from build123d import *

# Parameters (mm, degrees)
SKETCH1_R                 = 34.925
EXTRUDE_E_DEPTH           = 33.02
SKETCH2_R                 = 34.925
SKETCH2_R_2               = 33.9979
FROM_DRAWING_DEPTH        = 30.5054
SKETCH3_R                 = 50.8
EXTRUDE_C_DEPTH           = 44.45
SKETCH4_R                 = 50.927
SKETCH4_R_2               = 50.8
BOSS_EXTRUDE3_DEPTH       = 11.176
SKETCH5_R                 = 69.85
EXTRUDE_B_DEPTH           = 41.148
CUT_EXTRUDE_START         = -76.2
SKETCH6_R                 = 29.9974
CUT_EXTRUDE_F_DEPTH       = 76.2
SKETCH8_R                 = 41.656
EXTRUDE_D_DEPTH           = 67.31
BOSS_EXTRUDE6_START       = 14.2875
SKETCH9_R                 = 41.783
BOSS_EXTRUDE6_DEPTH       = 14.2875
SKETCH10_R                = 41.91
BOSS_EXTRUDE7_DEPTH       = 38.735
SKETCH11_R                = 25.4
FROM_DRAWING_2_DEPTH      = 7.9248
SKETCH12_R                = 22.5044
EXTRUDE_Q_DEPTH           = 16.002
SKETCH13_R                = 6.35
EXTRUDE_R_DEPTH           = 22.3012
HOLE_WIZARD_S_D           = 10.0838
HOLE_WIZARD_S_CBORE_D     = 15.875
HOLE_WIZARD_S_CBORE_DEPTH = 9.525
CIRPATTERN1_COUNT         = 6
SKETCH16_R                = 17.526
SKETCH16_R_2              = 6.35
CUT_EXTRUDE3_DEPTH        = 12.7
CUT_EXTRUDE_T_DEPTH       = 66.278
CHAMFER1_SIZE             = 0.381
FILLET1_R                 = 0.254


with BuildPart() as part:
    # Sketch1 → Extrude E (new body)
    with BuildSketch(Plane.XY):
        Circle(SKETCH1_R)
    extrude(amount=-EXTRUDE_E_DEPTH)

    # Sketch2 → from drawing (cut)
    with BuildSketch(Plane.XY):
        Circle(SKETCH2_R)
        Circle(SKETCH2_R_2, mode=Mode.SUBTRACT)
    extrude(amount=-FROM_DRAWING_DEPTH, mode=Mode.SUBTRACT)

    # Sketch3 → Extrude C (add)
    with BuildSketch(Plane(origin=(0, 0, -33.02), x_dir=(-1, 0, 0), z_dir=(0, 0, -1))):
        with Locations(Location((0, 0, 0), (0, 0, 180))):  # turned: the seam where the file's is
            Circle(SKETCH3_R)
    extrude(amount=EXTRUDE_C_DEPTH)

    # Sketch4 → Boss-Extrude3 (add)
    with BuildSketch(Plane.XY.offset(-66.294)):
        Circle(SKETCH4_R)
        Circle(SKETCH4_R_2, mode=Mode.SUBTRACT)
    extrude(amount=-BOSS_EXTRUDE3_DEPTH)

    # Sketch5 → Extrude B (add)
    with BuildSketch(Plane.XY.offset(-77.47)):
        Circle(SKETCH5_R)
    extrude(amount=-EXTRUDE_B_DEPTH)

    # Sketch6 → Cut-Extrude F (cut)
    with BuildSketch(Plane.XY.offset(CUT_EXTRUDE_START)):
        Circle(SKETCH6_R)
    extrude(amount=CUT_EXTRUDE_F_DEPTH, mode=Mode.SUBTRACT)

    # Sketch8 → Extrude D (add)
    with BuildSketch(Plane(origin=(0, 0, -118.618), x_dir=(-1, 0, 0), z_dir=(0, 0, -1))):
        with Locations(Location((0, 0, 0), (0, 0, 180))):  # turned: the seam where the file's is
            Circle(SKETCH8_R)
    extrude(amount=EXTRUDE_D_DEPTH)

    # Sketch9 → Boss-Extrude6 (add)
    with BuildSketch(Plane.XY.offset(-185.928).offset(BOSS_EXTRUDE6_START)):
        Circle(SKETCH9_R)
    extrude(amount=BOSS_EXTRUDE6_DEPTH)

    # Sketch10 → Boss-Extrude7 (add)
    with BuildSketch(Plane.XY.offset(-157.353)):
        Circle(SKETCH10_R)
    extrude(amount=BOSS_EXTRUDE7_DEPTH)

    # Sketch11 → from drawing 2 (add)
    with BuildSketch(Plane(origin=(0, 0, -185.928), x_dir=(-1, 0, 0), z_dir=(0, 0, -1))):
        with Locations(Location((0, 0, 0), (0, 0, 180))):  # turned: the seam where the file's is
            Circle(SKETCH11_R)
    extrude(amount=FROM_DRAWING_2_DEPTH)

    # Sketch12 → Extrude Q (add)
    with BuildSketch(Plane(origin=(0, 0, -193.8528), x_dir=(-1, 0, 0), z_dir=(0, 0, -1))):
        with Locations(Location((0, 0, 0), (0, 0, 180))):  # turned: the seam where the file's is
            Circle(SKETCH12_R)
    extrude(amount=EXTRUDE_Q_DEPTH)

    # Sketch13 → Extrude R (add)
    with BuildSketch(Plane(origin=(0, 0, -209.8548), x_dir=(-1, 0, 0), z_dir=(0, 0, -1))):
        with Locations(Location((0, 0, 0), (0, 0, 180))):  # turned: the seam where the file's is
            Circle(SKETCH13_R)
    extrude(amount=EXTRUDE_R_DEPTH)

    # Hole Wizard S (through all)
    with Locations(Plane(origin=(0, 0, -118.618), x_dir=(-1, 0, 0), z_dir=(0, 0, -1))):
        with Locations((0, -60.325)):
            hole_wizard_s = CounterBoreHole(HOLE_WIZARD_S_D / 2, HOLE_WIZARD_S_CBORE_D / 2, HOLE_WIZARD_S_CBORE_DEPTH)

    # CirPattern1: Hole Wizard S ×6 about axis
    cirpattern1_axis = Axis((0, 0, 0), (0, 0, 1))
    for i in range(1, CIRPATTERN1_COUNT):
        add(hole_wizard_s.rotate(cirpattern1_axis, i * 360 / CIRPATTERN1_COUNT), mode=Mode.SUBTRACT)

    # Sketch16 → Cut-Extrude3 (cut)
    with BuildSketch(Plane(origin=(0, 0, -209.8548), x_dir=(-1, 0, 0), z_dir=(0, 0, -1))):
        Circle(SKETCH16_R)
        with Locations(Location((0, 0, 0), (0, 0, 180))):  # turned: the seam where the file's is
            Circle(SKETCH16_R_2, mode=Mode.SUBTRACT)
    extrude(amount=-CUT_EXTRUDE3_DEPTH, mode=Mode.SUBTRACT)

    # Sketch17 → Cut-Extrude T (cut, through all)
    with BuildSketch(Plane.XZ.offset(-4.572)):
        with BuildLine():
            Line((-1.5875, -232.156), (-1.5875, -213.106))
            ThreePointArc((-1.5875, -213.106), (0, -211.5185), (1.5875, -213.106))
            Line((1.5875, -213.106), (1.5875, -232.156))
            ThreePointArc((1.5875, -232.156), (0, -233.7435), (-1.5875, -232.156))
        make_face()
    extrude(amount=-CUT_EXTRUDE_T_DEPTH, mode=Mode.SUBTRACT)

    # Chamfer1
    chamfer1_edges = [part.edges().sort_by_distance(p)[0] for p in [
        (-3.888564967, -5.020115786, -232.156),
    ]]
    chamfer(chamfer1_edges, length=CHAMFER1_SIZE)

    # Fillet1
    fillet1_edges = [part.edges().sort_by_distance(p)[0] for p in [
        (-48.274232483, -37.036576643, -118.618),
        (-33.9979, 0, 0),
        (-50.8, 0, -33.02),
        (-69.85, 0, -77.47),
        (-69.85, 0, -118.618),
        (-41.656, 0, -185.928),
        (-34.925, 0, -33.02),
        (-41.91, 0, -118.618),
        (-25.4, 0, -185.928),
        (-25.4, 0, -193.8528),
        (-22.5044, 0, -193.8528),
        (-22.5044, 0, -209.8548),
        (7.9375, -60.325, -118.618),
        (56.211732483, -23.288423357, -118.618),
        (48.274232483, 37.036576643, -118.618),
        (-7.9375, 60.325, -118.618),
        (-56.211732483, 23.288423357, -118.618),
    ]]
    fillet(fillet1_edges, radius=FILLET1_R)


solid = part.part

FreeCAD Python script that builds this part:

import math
import FreeCAD as App
import Part
import Sketcher
from FreeCAD import Vector
Q = App.Units.Quantity


def edges_at(feature, points):
    """Names of the edges that pass closest to the given points."""
    edges = feature.Shape.Edges
    near = lambda p: min(range(len(edges)), key=lambda i: edges[i].distToShape(Part.Vertex(*p))[0])
    return sorted({f"Edge{near(p) + 1}" for p in points})

doc = App.newDocument("Part")
body = doc.addObject("PartDesign::Body", "Body")

sketch1 = doc.addObject("Sketcher::SketchObject", "Sketch")
body.addObject(sketch1)
sketch1.AttachmentSupport = (doc.XY_Plane, [""])
sketch1.MapMode = "FlatFace"
sketch1.addGeometry(Part.Circle(Vector(0, 0, 0), Vector(0, 0, 1), 34.925), False)
sketch1.addConstraint([
    Sketcher.Constraint("Coincident", 0, 3, -1, 1),
    Sketcher.Constraint("Diameter", 0, Q("2.75 in")),
])
pad1 = doc.addObject("PartDesign::Pad", "Pad")
body.addObject(pad1)
pad1.Profile = sketch1
pad1.Length = Q("1.3 in")
pad1.Reversed = True

sketch2 = doc.addObject("Sketcher::SketchObject", "Sketch001")
body.addObject(sketch2)
sketch2.AttachmentSupport = (doc.XY_Plane, [""])
sketch2.MapMode = "FlatFace"
sketch2.addGeometry([
    Part.Circle(Vector(0, 0, 0), Vector(0, 0, 1), 34.925),
    Part.Circle(Vector(0, 0, 0), Vector(0, 0, 1), 33.9979),
], False)
sketch2.addConstraint([
    Sketcher.Constraint("Coincident", 0, 3, -1, 1),
    Sketcher.Constraint("Coincident", 1, 3, -1, 1),
    Sketcher.Constraint("Diameter", 0, Q("2.75 in")),
    Sketcher.Constraint("Diameter", 1, Q("2.677 in")),
])
pocket1 = doc.addObject("PartDesign::Pocket", "Pocket")
body.addObject(pocket1)
pocket1.Profile = sketch2
pocket1.Length = Q("1.201 in")

sketch3 = doc.addObject("Sketcher::SketchObject", "Sketch002")
body.addObject(sketch3)
sketch3.AttachmentSupport = (doc.XY_Plane, [""])
sketch3.MapMode = "FlatFace"
sketch3.AttachmentOffset = App.Placement(Vector(0, 0, -1.3 * 25.4), App.Rotation())
sketch3.addGeometry(Part.Circle(Vector(0, 0, 0), Vector(0, 0, 1), 50.8), False)
sketch3.addConstraint([
    Sketcher.Constraint("Coincident", 0, 3, -1, 1),
    Sketcher.Constraint("Diameter", 0, Q("4 in")),
])
pad2 = doc.addObject("PartDesign::Pad", "Pad001")
body.addObject(pad2)
pad2.Profile = sketch3
pad2.Length = Q("1.75 in")
pad2.Reversed = True

sketch4 = doc.addObject("Sketcher::SketchObject", "Sketch003")
body.addObject(sketch4)
sketch4.AttachmentSupport = (doc.XY_Plane, [""])
sketch4.MapMode = "FlatFace"
sketch4.AttachmentOffset = App.Placement(Vector(0, 0, -2.61 * 25.4), App.Rotation())
sketch4.addGeometry([
    Part.Circle(Vector(0, 0, 0), Vector(0, 0, 1), 50.927),
    Part.Circle(Vector(0, 0, 0), Vector(0, 0, 1), 50.8),
], False)
sketch4.addConstraint([
    Sketcher.Constraint("Coincident", 0, 3, -1, 1),
    Sketcher.Constraint("Coincident", 1, 3, -1, 1),
    Sketcher.Constraint("Diameter", 1, Q("4 in")),
    Sketcher.Constraint("Diameter", 0, Q("4.01 in")),
])
pad3 = doc.addObject("PartDesign::Pad", "Pad002")
body.addObject(pad3)
pad3.Profile = sketch4
pad3.Length = Q("0.44 in")
pad3.Reversed = True

sketch5 = doc.addObject("Sketcher::SketchObject", "Sketch004")
body.addObject(sketch5)
sketch5.AttachmentSupport = (doc.XY_Plane, [""])
sketch5.MapMode = "FlatFace"
sketch5.AttachmentOffset = App.Placement(Vector(0, 0, -3.05 * 25.4), App.Rotation())
sketch5.addGeometry(Part.Circle(Vector(0, 0, 0), Vector(0, 0, 1), 69.85), False)
sketch5.addConstraint([
    Sketcher.Constraint("Coincident", 0, 3, -1, 1),
    Sketcher.Constraint("Diameter", 0, Q("5.5 in")),
])
pad4 = doc.addObject("PartDesign::Pad", "Pad003")
body.addObject(pad4)
pad4.Profile = sketch5
pad4.Length = Q("1.62 in")
pad4.Reversed = True

sketch6 = doc.addObject("Sketcher::SketchObject", "Sketch005")
body.addObject(sketch6)
sketch6.AttachmentSupport = (doc.XY_Plane, [""])
sketch6.MapMode = "FlatFace"
sketch6.AttachmentOffset = App.Placement(Vector(0, 0, -3 * 25.4), App.Rotation())
sketch6.addGeometry(Part.Circle(Vector(0, 0, 0), Vector(0, 0, 1), 29.9974), False)
sketch6.addConstraint([
    Sketcher.Constraint("Coincident", 0, 3, -1, 1),
    Sketcher.Constraint("Diameter", 0, Q("2.362 in")),
])
pocket2 = doc.addObject("PartDesign::Pocket", "Pocket001")
body.addObject(pocket2)
pocket2.Profile = sketch6
pocket2.Length = Q("3 in")
pocket2.Reversed = True

sketch7 = doc.addObject("Sketcher::SketchObject", "Sketch006")
body.addObject(sketch7)
sketch7.AttachmentSupport = (doc.XY_Plane, [""])
sketch7.MapMode = "FlatFace"
sketch7.AttachmentOffset = App.Placement(Vector(0, 0, -4.67 * 25.4), App.Rotation())
sketch7.addGeometry(Part.Circle(Vector(0, 0, 0), Vector(0, 0, 1), 41.656), False)
sketch7.addConstraint([
    Sketcher.Constraint("Coincident", 0, 3, -1, 1),
    Sketcher.Constraint("Diameter", 0, Q("3.28 in")),
])
pad5 = doc.addObject("PartDesign::Pad", "Pad004")
body.addObject(pad5)
pad5.Profile = sketch7
pad5.Length = Q("2.65 in")
pad5.Reversed = True

sketch8 = doc.addObject("Sketcher::SketchObject", "Sketch007")
body.addObject(sketch8)
sketch8.AttachmentSupport = (doc.XY_Plane, [""])
sketch8.MapMode = "FlatFace"
sketch8.AttachmentOffset = App.Placement(Vector(0, 0, -6.7575 * 25.4), App.Rotation())
sketch8.addGeometry(Part.Circle(Vector(0, 0, 0), Vector(0, 0, 1), 41.783), False)
sketch8.addConstraint([
    Sketcher.Constraint("Coincident", 0, 3, -1, 1),
    Sketcher.Constraint("Diameter", 0, Q("3.29 in")),
])
pad6 = doc.addObject("PartDesign::Pad", "Pad005")
body.addObject(pad6)
pad6.Profile = sketch8
pad6.Length = Q("0.5625 in")

sketch9 = doc.addObject("Sketcher::SketchObject", "Sketch008")
body.addObject(sketch9)
sketch9.AttachmentSupport = (doc.XY_Plane, [""])
sketch9.MapMode = "FlatFace"
sketch9.AttachmentOffset = App.Placement(Vector(0, 0, -6.195 * 25.4), App.Rotation())
sketch9.addGeometry(Part.Circle(Vector(0, 0, 0), Vector(0, 0, 1), 41.91), False)
sketch9.addConstraint([
    Sketcher.Constraint("Coincident", 0, 3, -1, 1),
    Sketcher.Constraint("Diameter", 0, Q("3.3 in")),
])
pad7 = doc.addObject("PartDesign::Pad", "Pad006")
body.addObject(pad7)
pad7.Profile = sketch9
pad7.Length = Q("1.525 in")

sketch10 = doc.addObject("Sketcher::SketchObject", "Sketch009")
body.addObject(sketch10)
sketch10.AttachmentSupport = (doc.XY_Plane, [""])
sketch10.MapMode = "FlatFace"
sketch10.AttachmentOffset = App.Placement(Vector(0, 0, -7.32 * 25.4), App.Rotation())
sketch10.addGeometry(Part.Circle(Vector(0, 0, 0), Vector(0, 0, 1), 25.4), False)
sketch10.addConstraint([
    Sketcher.Constraint("Coincident", 0, 3, -1, 1),
    Sketcher.Constraint("Diameter", 0, Q("2 in")),
])
pad8 = doc.addObject("PartDesign::Pad", "Pad007")
body.addObject(pad8)
pad8.Profile = sketch10
pad8.Length = Q("0.312 in")
pad8.Reversed = True

sketch11 = doc.addObject("Sketcher::SketchObject", "Sketch010")
body.addObject(sketch11)
sketch11.AttachmentSupport = (doc.XY_Plane, [""])
sketch11.MapMode = "FlatFace"
sketch11.AttachmentOffset = App.Placement(Vector(0, 0, -7.632 * 25.4), App.Rotation())
sketch11.addGeometry(Part.Circle(Vector(0, 0, 0), Vector(0, 0, 1), 22.5044), False)
sketch11.addConstraint([
    Sketcher.Constraint("Coincident", 0, 3, -1, 1),
    Sketcher.Constraint("Diameter", 0, Q("1.772 in")),
])
pad9 = doc.addObject("PartDesign::Pad", "Pad008")
body.addObject(pad9)
pad9.Profile = sketch11
pad9.Length = Q("0.63 in")
pad9.Reversed = True

sketch12 = doc.addObject("Sketcher::SketchObject", "Sketch011")
body.addObject(sketch12)
sketch12.AttachmentSupport = (doc.XY_Plane, [""])
sketch12.MapMode = "FlatFace"
sketch12.AttachmentOffset = App.Placement(Vector(0, 0, -8.262 * 25.4), App.Rotation())
sketch12.addGeometry(Part.Circle(Vector(0, 0, 0), Vector(0, 0, 1), 6.35), False)
sketch12.addConstraint([
    Sketcher.Constraint("Coincident", 0, 3, -1, 1),
    Sketcher.Constraint("Diameter", 0, Q("0.5 in")),
])
pad10 = doc.addObject("PartDesign::Pad", "Pad009")
body.addObject(pad10)
pad10.Profile = sketch12
pad10.Length = Q("0.878 in")
pad10.Reversed = True

sketch13 = doc.addObject("Sketcher::SketchObject", "Sketch012")
body.addObject(sketch13)
sketch13.AttachmentSupport = (doc.XY_Plane, [""])
sketch13.MapMode = "FlatFace"
sketch13.AttachmentOffset = App.Placement(Vector(0, 0, -4.67 * 25.4), App.Rotation())
sketch13.addGeometry(Part.Circle(Vector(0, -60.325, 0), Vector(0, 0, 1), 5.0419), False)
sketch13.addConstraint([
    Sketcher.Constraint("PointOnObject", 0, 3, -2),
    Sketcher.Constraint("Diameter", 0, Q("0.397 in")),
    Sketcher.Constraint("DistanceY", 0, 3, -1, 1, Q("2.375 in")),
])
doc.recompute()
hole = doc.addObject("PartDesign::Hole", "Hole")
body.addObject(hole)
hole.Profile = sketch13
hole.ThreadType = "None"
hole.Diameter = Q("0.397 in")
hole.DepthType = "ThroughAll"
hole.HoleCutType = "Counterbore"
hole.HoleCutDiameter = Q("0.625 in")
hole.HoleCutDepth = Q("0.375 in")
hole.Reversed = True
doc.recompute()

polarpattern = doc.addObject("PartDesign::PolarPattern", "PolarPattern")
body.addObject(polarpattern)
polarpattern.Originals = [hole]
polarpattern.Axis = (doc.Z_Axis, [""])
polarpattern.Angle = 360
polarpattern.Occurrences = 6
body.Tip = polarpattern

sketch14 = doc.addObject("Sketcher::SketchObject", "Sketch013")
body.addObject(sketch14)
sketch14.AttachmentSupport = (doc.XY_Plane, [""])
sketch14.MapMode = "FlatFace"
sketch14.AttachmentOffset = App.Placement(Vector(0, 0, -8.262 * 25.4), App.Rotation())
sketch14.addGeometry([
    Part.Circle(Vector(0, 0, 0), Vector(0, 0, 1), 17.526),
    Part.Circle(Vector(0, 0, 0), Vector(0, 0, 1), 6.35),
], False)
sketch14.addConstraint([
    Sketcher.Constraint("Coincident", 0, 3, -1, 1),
    Sketcher.Constraint("Coincident", 1, 3, -1, 1),
    Sketcher.Constraint("Diameter", 1, Q("0.5 in")),
    Sketcher.Constraint("Diameter", 0, Q("1.38 in")),
])
pocket3 = doc.addObject("PartDesign::Pocket", "Pocket002")
body.addObject(pocket3)
pocket3.Profile = sketch14
pocket3.Length = Q("0.5 in")
pocket3.Reversed = True

sketch15 = doc.addObject("Sketcher::SketchObject", "Sketch014")
body.addObject(sketch15)
sketch15.AttachmentSupport = (doc.XZ_Plane, [""])
sketch15.MapMode = "FlatFace"
sketch15.AttachmentOffset = App.Placement(Vector(0, 0, -0.18 * 25.4), App.Rotation())
sketch15.addGeometry([
    Part.LineSegment(Vector(-1.5875, -213.106, 0), Vector(-1.5875, -232.156, 0)),
    Part.ArcOfCircle(Part.Circle(Vector(0, -232.156, 0), Vector(0, 0, 1), 1.5875), math.radians(180), math.radians(360)),
    Part.LineSegment(Vector(1.5875, -232.156, 0), Vector(1.5875, -213.106, 0)),
    Part.ArcOfCircle(Part.Circle(Vector(0, -213.106, 0), Vector(0, 0, 1), 1.5875), math.radians(0), math.radians(180)),
], False)
sketch15.addConstraint([
    Sketcher.Constraint("Tangent", 0, 2, 1, 1),
    Sketcher.Constraint("Tangent", 1, 2, 2, 1),
    Sketcher.Constraint("Tangent", 2, 2, 3, 1),
    Sketcher.Constraint("Tangent", 3, 2, 0, 1),
    Sketcher.Constraint("Vertical", 0),
    Sketcher.Constraint("Vertical", 2),
    Sketcher.Constraint("PointOnObject", 1, 3, -2),
    Sketcher.Constraint("Radius", 1, Q("0.0625 in")),
    Sketcher.Constraint("DistanceY", 0, 2, 0, 1, Q("0.75 in")),
    Sketcher.Constraint("DistanceY", 1, 3, -1, 1, Q("9.14 in")),
])
pocket4 = doc.addObject("PartDesign::Pocket", "Pocket003")
body.addObject(pocket4)
pocket4.Profile = sketch15
pocket4.Type = "ThroughAll"
doc.recompute()

chamfer = doc.addObject("PartDesign::Chamfer", "Chamfer")
body.addObject(chamfer)
chamfer.Base = (pocket4, edges_at(pocket4, [(-3.889, -5.02, -232.156)]))
chamfer.Size = Q("0.015 in")
doc.recompute()

fillet = doc.addObject("PartDesign::Fillet", "Fillet")
body.addObject(fillet)
fillet.Base = (chamfer, edges_at(chamfer, [
    (-48.274, -37.037, -118.618),
    (-33.998, 0, 0),
    (-50.8, 0, -33.02),
    (-69.85, 0, -77.47),
    (-69.85, 0, -118.618),
    (-41.656, 0, -185.928),
    (-34.925, 0, -33.02),
    (-41.91, 0, -118.618),
    (-25.4, 0, -185.928),
    (-25.4, 0, -193.853),
    (-22.504, 0, -193.853),
    (-22.504, 0, -209.855),
    (7.938, -60.325, -118.618),
    (56.212, -23.288, -118.618),
    (48.274, 37.037, -118.618),
    (-7.938, 60.325, -118.618),
    (-56.212, 23.288, -118.618),
]))
fillet.Radius = Q("0.01 in")

doc.recompute()
